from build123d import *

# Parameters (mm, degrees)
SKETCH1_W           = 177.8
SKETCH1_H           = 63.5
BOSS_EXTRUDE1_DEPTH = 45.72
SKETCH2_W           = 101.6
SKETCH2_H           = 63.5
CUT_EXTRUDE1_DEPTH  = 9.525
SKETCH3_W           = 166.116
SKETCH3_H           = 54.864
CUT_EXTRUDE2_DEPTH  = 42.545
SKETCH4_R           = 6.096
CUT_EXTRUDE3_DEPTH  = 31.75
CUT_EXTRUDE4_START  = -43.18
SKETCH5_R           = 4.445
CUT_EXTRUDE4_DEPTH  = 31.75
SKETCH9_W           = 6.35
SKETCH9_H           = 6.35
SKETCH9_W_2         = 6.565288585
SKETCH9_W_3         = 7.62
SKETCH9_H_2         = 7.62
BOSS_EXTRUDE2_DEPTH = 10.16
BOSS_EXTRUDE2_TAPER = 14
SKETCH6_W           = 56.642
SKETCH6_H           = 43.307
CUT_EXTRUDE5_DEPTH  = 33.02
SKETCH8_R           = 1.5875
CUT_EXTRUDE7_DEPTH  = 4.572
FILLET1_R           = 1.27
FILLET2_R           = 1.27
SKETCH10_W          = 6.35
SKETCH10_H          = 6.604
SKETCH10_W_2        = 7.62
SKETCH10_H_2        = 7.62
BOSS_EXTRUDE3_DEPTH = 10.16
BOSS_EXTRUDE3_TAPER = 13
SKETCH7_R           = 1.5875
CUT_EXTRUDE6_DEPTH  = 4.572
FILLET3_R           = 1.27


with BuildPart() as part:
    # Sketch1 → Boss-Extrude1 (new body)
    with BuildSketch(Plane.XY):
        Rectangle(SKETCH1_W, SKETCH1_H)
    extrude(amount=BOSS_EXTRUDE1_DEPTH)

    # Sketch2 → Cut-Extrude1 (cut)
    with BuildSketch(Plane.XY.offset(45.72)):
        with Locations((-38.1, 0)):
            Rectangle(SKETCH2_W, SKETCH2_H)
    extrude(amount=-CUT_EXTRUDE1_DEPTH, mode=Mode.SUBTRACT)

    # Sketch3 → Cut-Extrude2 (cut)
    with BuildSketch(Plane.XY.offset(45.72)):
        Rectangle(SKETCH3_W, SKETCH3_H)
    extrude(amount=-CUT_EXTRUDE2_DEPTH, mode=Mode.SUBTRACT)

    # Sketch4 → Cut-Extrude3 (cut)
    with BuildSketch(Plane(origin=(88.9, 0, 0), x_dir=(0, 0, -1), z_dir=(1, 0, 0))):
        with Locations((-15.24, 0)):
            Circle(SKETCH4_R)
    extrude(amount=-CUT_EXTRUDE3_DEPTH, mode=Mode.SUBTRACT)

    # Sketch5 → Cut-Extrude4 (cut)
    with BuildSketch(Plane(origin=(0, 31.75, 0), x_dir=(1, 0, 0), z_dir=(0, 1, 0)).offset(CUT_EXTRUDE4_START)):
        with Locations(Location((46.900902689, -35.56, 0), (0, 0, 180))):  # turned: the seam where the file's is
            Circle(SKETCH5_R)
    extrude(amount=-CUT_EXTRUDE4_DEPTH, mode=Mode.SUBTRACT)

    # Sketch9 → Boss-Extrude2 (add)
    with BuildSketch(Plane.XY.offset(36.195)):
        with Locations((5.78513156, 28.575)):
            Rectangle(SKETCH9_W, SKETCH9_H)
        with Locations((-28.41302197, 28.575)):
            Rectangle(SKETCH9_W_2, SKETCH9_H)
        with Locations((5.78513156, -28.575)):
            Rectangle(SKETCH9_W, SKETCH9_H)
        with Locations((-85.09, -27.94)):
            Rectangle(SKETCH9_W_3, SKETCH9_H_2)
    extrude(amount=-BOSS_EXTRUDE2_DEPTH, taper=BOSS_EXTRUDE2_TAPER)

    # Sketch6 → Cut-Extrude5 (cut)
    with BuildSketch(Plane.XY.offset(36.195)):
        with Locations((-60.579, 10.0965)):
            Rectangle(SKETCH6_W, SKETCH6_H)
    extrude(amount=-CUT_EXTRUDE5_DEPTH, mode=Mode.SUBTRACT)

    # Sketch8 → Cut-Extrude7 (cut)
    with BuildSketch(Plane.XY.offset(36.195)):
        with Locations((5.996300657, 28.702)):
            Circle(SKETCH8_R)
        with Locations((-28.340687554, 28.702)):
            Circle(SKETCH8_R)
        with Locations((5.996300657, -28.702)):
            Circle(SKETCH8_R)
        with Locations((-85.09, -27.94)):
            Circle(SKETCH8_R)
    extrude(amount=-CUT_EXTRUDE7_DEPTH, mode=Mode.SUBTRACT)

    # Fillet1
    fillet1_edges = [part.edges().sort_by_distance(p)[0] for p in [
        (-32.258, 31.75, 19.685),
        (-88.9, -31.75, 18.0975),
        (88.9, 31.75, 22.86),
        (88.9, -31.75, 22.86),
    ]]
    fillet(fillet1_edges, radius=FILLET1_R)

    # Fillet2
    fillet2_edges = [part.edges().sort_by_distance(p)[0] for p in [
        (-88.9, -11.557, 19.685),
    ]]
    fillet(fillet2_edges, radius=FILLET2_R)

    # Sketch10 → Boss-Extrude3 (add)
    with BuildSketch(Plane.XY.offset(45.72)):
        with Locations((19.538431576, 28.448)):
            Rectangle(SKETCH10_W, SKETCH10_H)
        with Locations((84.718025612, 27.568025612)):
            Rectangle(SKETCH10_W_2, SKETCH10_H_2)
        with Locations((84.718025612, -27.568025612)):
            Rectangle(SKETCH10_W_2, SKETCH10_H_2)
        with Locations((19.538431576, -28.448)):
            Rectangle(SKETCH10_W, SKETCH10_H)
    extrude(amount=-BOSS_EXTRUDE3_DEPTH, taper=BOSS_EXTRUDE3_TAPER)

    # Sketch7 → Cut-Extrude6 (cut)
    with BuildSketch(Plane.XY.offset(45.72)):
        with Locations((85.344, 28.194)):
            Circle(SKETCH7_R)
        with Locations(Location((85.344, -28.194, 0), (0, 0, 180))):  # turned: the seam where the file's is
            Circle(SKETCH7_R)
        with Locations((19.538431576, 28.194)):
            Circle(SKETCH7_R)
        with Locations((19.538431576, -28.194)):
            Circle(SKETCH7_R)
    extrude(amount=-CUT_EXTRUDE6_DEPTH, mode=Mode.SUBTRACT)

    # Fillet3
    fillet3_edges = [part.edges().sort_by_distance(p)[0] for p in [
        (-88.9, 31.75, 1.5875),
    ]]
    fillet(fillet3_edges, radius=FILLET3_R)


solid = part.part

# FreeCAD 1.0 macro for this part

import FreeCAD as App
import Part
import Sketcher

V = App.Vector
Q = App.Units.Quantity


def edges_at(feature, points):
    """Names of the edges that pass closest to the given points."""
    edges = feature.Shape.Edges
    near = lambda p: min(range(len(edges)), key=lambda i: edges[i].distToShape(Part.Vertex(*p))[0])
    return sorted({f"Edge{near(p) + 1}" for p in points})

doc = App.newDocument("Part")
body = doc.addObject("PartDesign::Body", "Body")

sketch1 = doc.addObject("Sketcher::SketchObject", "Sketch")
body.addObject(sketch1)
sketch1.AttachmentSupport = (doc.XY_Plane, [""])
sketch1.MapMode = "FlatFace"
sketch1.addGeometry(Part.LineSegment(V(-89, 32, 0), V(-89, -32, 0)), False)
sketch1.addGeometry(Part.LineSegment(V(-89, -32, 0), V(89, -32, 0)), False)
sketch1.addGeometry(Part.LineSegment(V(89, -32, 0), V(89, 32, 0)), False)
sketch1.addGeometry(Part.LineSegment(V(89, 32, 0), V(-89, 32, 0)), False)
sketch1.addConstraint(Sketcher.Constraint("Coincident", 0, 2, 1, 1))
sketch1.addConstraint(Sketcher.Constraint("Coincident", 1, 2, 2, 1))
sketch1.addConstraint(Sketcher.Constraint("Coincident", 2, 2, 3, 1))
sketch1.addConstraint(Sketcher.Constraint("Coincident", 3, 2, 0, 1))
sketch1.addConstraint(Sketcher.Constraint("Vertical", 0))
sketch1.addConstraint(Sketcher.Constraint("Horizontal", 1))
sketch1.addConstraint(Sketcher.Constraint("Vertical", 2))
sketch1.addConstraint(Sketcher.Constraint("Horizontal", 3))
sketch1.addConstraint(Sketcher.Constraint("Symmetric", 0, 2, 2, 2, -1, 1))
sketch1.addConstraint(Sketcher.Constraint("DistanceX", 1, 1, 1, 2, Q("7 in")))
sketch1.addConstraint(Sketcher.Constraint("DistanceY", 0, 2, 0, 1, Q("2.5 in")))
pad1 = doc.addObject("PartDesign::Pad", "Pad")
body.addObject(pad1)
pad1.Profile = sketch1
pad1.Length = Q("1.8 in")

sketch2 = doc.addObject("Sketcher::SketchObject", "Sketch001")
body.addObject(sketch2)
sketch2.AttachmentSupport = (doc.XY_Plane, [""])
sketch2.MapMode = "FlatFace"
sketch2.AttachmentOffset = App.Placement(V(0, 0, 1.8 * 25.4), App.Rotation())
sketch2.addGeometry(Part.LineSegment(V(-89, 32, 0), V(-89, -32, 0)), False)
sketch2.addGeometry(Part.LineSegment(V(-89, -32, 0), V(13, -32, 0)), False)
sketch2.addGeometry(Part.LineSegment(V(13, -32, 0), V(13, 32, 0)), False)
sketch2.addGeometry(Part.LineSegment(V(13, 32, 0), V(-89, 32, 0)), False)
sketch2.addConstraint(Sketcher.Constraint("Coincident", 0, 2, 1, 1))
sketch2.addConstraint(Sketcher.Constraint("Coincident", 1, 2, 2, 1))
sketch2.addConstraint(Sketcher.Constraint("Coincident", 2, 2, 3, 1))
sketch2.addConstraint(Sketcher.Constraint("Coincident", 3, 2, 0, 1))
sketch2.addConstraint(Sketcher.Constraint("Vertical", 0))
sketch2.addConstraint(Sketcher.Constraint("Horizontal", 1))
sketch2.addConstraint(Sketcher.Constraint("Vertical", 2))
sketch2.addConstraint(Sketcher.Constraint("Horizontal", 3))
sketch2.addConstraint(Sketcher.Constraint("DistanceX", 1, 1, 1, 2, Q("4 in")))
sketch2.addConstraint(Sketcher.Constraint("DistanceY", 0, 2, 0, 1, Q("2.5 in")))
sketch2.addConstraint(Sketcher.Constraint("DistanceX", 0, 2, -1, 1, Q("3.5 in")))
sketch2.addConstraint(Sketcher.Constraint("DistanceY", 0, 2, -1, 1, Q("1.25 in")))
pocket1 = doc.addObject("PartDesign::Pocket", "Pocket")
body.addObject(pocket1)
pocket1.Profile = sketch2
pocket1.Length = Q("0.375 in")

sketch3 = doc.addObject("Sketcher::SketchObject", "Sketch002")
body.addObject(sketch3)
sketch3.AttachmentSupport = (doc.XY_Plane, [""])
sketch3.MapMode = "FlatFace"
sketch3.AttachmentOffset = App.Placement(V(0, 0, 1.8 * 25.4), App.Rotation())
sketch3.addGeometry(Part.LineSegment(V(-83, 27, 0), V(-83, -27, 0)), False)
sketch3.addGeometry(Part.LineSegment(V(-83, -27, 0), V(83, -27, 0)), False)
sketch3.addGeometry(Part.LineSegment(V(83, -27, 0), V(83, 27, 0)), False)
sketch3.addGeometry(Part.LineSegment(V(83, 27, 0), V(-83, 27, 0)), False)
sketch3.addConstraint(Sketcher.Constraint("Coincident", 0, 2, 1, 1))
sketch3.addConstraint(Sketcher.Constraint("Coincident", 1, 2, 2, 1))
sketch3.addConstraint(Sketcher.Constraint("Coincident", 2, 2, 3, 1))
sketch3.addConstraint(Sketcher.Constraint("Coincident", 3, 2, 0, 1))
sketch3.addConstraint(Sketcher.Constraint("Vertical", 0))
sketch3.addConstraint(Sketcher.Constraint("Horizontal", 1))
sketch3.addConstraint(Sketcher.Constraint("Vertical", 2))
sketch3.addConstraint(Sketcher.Constraint("Horizontal", 3))
sketch3.addConstraint(Sketcher.Constraint("Symmetric", 0, 2, 2, 2, -1, 1))
sketch3.addConstraint(Sketcher.Constraint("DistanceX", 1, 1, 1, 2, Q("6.54 in")))
sketch3.addConstraint(Sketcher.Constraint("DistanceY", 0, 2, 0, 1, Q("2.16 in")))
pocket2 = doc.addObject("PartDesign::Pocket", "Pocket001")
body.addObject(pocket2)
pocket2.Profile = sketch3
pocket2.Length = Q("1.675 in")

sketch4 = doc.addObject("Sketcher::SketchObject", "Sketch003")
body.addObject(sketch4)
sketch4.AttachmentSupport = (doc.YZ_Plane, [""])
sketch4.MapMode = "FlatFace"
sketch4.AttachmentOffset = App.Placement(V(0, 0, 3.5 * 25.4), App.Rotation())
sketch4.addGeometry(Part.Circle(V(0, 15, 0), V(0, 0, 1), 6), False)
sketch4.addConstraint(Sketcher.Constraint("PointOnObject", 0, 3, -2))
sketch4.addConstraint(Sketcher.Constraint("Diameter", 0, Q("0.48 in")))
sketch4.addConstraint(Sketcher.Constraint("DistanceY", -1, 1, 0, 3, Q("0.6 in")))
pocket3 = doc.addObject("PartDesign::Pocket", "Pocket002")
body.addObject(pocket3)
pocket3.Profile = sketch4
pocket3.Length = Q("1.25 in")

sketch5 = doc.addObject("Sketcher::SketchObject", "Sketch004")
body.addObject(sketch5)
sketch5.AttachmentSupport = (doc.XZ_Plane, [""])
sketch5.MapMode = "FlatFace"
sketch5.AttachmentOffset = App.Placement(V(0, 0, 0.45 * 25.4), App.Rotation())
sketch5.addGeometry(Part.Circle(V(46.9, 35.6, 0), V(0, 0, 1), 4.4), False)
sketch5.addConstraint(Sketcher.Constraint("Diameter", 0, Q("0.35 in")))
sketch5.addConstraint(Sketcher.Constraint("DistanceY", -1, 1, 0, 3, Q("1.4 in")))
sketch5.addConstraint(Sketcher.Constraint("DistanceX", -1, 1, 0, 3, 46.900903))
pocket4 = doc.addObject("PartDesign::Pocket", "Pocket003")
body.addObject(pocket4)
pocket4.Profile = sketch5
pocket4.Length = Q("1.25 in")
pocket4.Reversed = True

sketch6 = doc.addObject("Sketcher::SketchObject", "Sketch005")
body.addObject(sketch6)
sketch6.AttachmentSupport = (doc.XY_Plane, [""])
sketch6.MapMode = "FlatFace"
sketch6.AttachmentOffset = App.Placement(V(0, 0, 1.425 * 25.4), App.Rotation())
sketch6.addGeometry(Part.LineSegment(V(3, 32, 0), V(3, 25, 0)), False)
sketch6.addGeometry(Part.LineSegment(V(3, 25, 0), V(9, 25, 0)), False)
sketch6.addGeometry(Part.LineSegment(V(9, 25, 0), V(9, 32, 0)), False)
sketch6.addGeometry(Part.LineSegment(V(9, 32, 0), V(3, 32, 0)), False)
sketch6.addGeometry(Part.LineSegment(V(-32, 32, 0), V(-32, 25, 0)), False)
sketch6.addGeometry(Part.LineSegment(V(-32, 25, 0), V(-25, 25, 0)), False)
sketch6.addGeometry(Part.LineSegment(V(-25, 25, 0), V(-25, 32, 0)), False)
sketch6.addGeometry(Part.LineSegment(V(-25, 32, 0), V(-32, 32, 0)), False)
sketch6.addGeometry(Part.LineSegment(V(3, -25, 0), V(3, -32, 0)), False)
sketch6.addGeometry(Part.LineSegment(V(3, -32, 0), V(9, -32, 0)), False)
sketch6.addGeometry(Part.LineSegment(V(9, -32, 0), V(9, -25, 0)), False)
sketch6.addGeometry(Part.LineSegment(V(9, -25, 0), V(3, -25, 0)), False)
sketch6.addGeometry(Part.LineSegment(V(-89, -24, 0), V(-89, -32, 0)), False)
sketch6.addGeometry(Part.LineSegment(V(-89, -32, 0), V(-81, -32, 0)), False)
sketch6.addGeometry(Part.LineSegment(V(-81, -32, 0), V(-81, -24, 0)), False)
sketch6.addGeometry(Part.LineSegment(V(-81, -24, 0), V(-89, -24, 0)), False)
sketch6.addConstraint(Sketcher.Constraint("Coincident", 0, 2, 1, 1))
sketch6.addConstraint(Sketcher.Constraint("Coincident", 1, 2, 2, 1))
sketch6.addConstraint(Sketcher.Constraint("Coincident", 2, 2, 3, 1))
sketch6.addConstraint(Sketcher.Constraint("Coincident", 3, 2, 0, 1))
sketch6.addConstraint(Sketcher.Constraint("Coincident", 4, 2, 5, 1))
sketch6.addConstraint(Sketcher.Constraint("Coincident", 5, 2, 6, 1))
sketch6.addConstraint(Sketcher.Constraint("Coincident", 6, 2, 7, 1))
sketch6.addConstraint(Sketcher.Constraint("Coincident", 7, 2, 4, 1))
sketch6.addConstraint(Sketcher.Constraint("Coincident", 8, 2, 9, 1))
sketch6.addConstraint(Sketcher.Constraint("Coincident", 9, 2, 10, 1))
sketch6.addConstraint(Sketcher.Constraint("Coincident", 10, 2, 11, 1))
sketch6.addConstraint(Sketcher.Constraint("Coincident", 11, 2, 8, 1))
sketch6.addConstraint(Sketcher.Constraint("Coincident", 12, 2, 13, 1))
sketch6.addConstraint(Sketcher.Constraint("Coincident", 13, 2, 14, 1))
sketch6.addConstraint(Sketcher.Constraint("Coincident", 14, 2, 15, 1))
sketch6.addConstraint(Sketcher.Constraint("Coincident", 15, 2, 12, 1))
sketch6.addConstraint(Sketcher.Constraint("Vertical", 0))
sketch6.addConstraint(Sketcher.Constraint("Horizontal", 1))
sketch6.addConstraint(Sketcher.Constraint("Vertical", 2))
sketch6.addConstraint(Sketcher.Constraint("Horizontal", 3))
sketch6.addConstraint(Sketcher.Constraint("Vertical", 4))
sketch6.addConstraint(Sketcher.Constraint("Horizontal", 5))
sketch6.addConstraint(Sketcher.Constraint("Vertical", 6))
sketch6.addConstraint(Sketcher.Constraint("Horizontal", 7))
sketch6.addConstraint(Sketcher.Constraint("Vertical", 8))
sketch6.addConstraint(Sketcher.Constraint("Horizontal", 9))
sketch6.addConstraint(Sketcher.Constraint("Vertical", 10))
sketch6.addConstraint(Sketcher.Constraint("Horizontal", 11))
sketch6.addConstraint(Sketcher.Constraint("Vertical", 12))
sketch6.addConstraint(Sketcher.Constraint("Horizontal", 13))
sketch6.addConstraint(Sketcher.Constraint("Vertical", 14))
sketch6.addConstraint(Sketcher.Constraint("Horizontal", 15))
sketch6.addConstraint(Sketcher.Constraint("Symmetric", 3, 2, 8, 2, -1))
sketch6.addConstraint(Sketcher.Constraint("Symmetric", 1, 2, 10, 2, -1))
sketch6.addConstraint(Sketcher.Constraint("Horizontal", 1, 2, 4, 2))
sketch6.addConstraint(Sketcher.Constraint("Horizontal", 3, 2, 6, 2))
sketch6.addConstraint(Sketcher.Constraint("Horizontal", 9, 2, 12, 2))
sketch6.addConstraint(Sketcher.Constraint("Equal", 11, 0))
sketch6.addConstraint(Sketcher.Constraint("Equal", 15, 12))
sketch6.addConstraint(Sketcher.Constraint("DistanceX", 13, 1, 13, 2, Q("0.3 in")))
sketch6.addConstraint(Sketcher.Constraint("DistanceY", -1, 1, 0, 2, Q("1 in")))
sketch6.addConstraint(Sketcher.Constraint("DistanceX", 1, 1, 1, 2, Q("0.25 in")))
sketch6.addConstraint(Sketcher.Constraint("DistanceX", 12, 2, -1, 1, Q("3.5 in")))
sketch6.addConstraint(Sketcher.Constraint("DistanceX", 5, 1, 5, 2, 6.565289))
sketch6.addConstraint(Sketcher.Constraint("DistanceX", -1, 1, 0, 2, 2.610132))
sketch6.addConstraint(Sketcher.Constraint("DistanceX", 5, 2, 0, 2, 27.740509))
pad2 = doc.addObject("PartDesign::Pad", "Pad001")
body.addObject(pad2)
pad2.Profile = sketch6
pad2.Length = Q("0.4 in")
pad2.Reversed = True
pad2.TaperAngle = -14

sketch7 = doc.addObject("Sketcher::SketchObject", "Sketch006")
body.addObject(sketch7)
sketch7.AttachmentSupport = (doc.XY_Plane, [""])
sketch7.MapMode = "FlatFace"
sketch7.AttachmentOffset = App.Placement(V(0, 0, 1.425 * 25.4), App.Rotation())
sketch7.addGeometry(Part.LineSegment(V(-89, 32, 0), V(-89, -12, 0)), False)
sketch7.addGeometry(Part.LineSegment(V(-89, -12, 0), V(-32, -12, 0)), False)
sketch7.addGeometry(Part.LineSegment(V(-32, -12, 0), V(-32, 32, 0)), False)
sketch7.addGeometry(Part.LineSegment(V(-32, 32, 0), V(-89, 32, 0)), False)
sketch7.addConstraint(Sketcher.Constraint("Coincident", 0, 2, 1, 1))
sketch7.addConstraint(Sketcher.Constraint("Coincident", 1, 2, 2, 1))
sketch7.addConstraint(Sketcher.Constraint("Coincident", 2, 2, 3, 1))
sketch7.addConstraint(Sketcher.Constraint("Coincident", 3, 2, 0, 1))
sketch7.addConstraint(Sketcher.Constraint("Vertical", 0))
sketch7.addConstraint(Sketcher.Constraint("Horizontal", 1))
sketch7.addConstraint(Sketcher.Constraint("Vertical", 2))
sketch7.addConstraint(Sketcher.Constraint("Horizontal", 3))
sketch7.addConstraint(Sketcher.Constraint("DistanceX", 1, 1, 1, 2, Q("2.23 in")))
sketch7.addConstraint(Sketcher.Constraint("DistanceX", 0, 2, -1, 1, Q("3.5 in")))
sketch7.addConstraint(Sketcher.Constraint("DistanceY", 0, 2, 0, 1, Q("1.705 in")))
sketch7.addConstraint(Sketcher.Constraint("DistanceY", -1, 1, 2, 2, Q("1.25 in")))
pocket5 = doc.addObject("PartDesign::Pocket", "Pocket004")
body.addObject(pocket5)
pocket5.Profile = sketch7
pocket5.Length = Q("1.3 in")

sketch8 = doc.addObject("Sketcher::SketchObject", "Sketch007")
body.addObject(sketch8)
sketch8.AttachmentSupport = (doc.XY_Plane, [""])
sketch8.MapMode = "FlatFace"
sketch8.AttachmentOffset = App.Placement(V(0, 0, 1.425 * 25.4), App.Rotation())
sketch8.addGeometry(Part.Circle(V(6, 28.7, 0), V(0, 0, 1), 1.6), False)
sketch8.addGeometry(Part.Circle(V(-28.3, 28.7, 0), V(0, 0, 1), 1.6), False)
sketch8.addGeometry(Part.Circle(V(6, -28.7, 0), V(0, 0, 1), 1.6), False)
sketch8.addGeometry(Part.Circle(V(-85.1, -27.9, 0), V(0, 0, 1), 1.6), False)
sketch8.addConstraint(Sketcher.Constraint("Equal", 0, 1))
sketch8.addConstraint(Sketcher.Constraint("Equal", 1, 2))
sketch8.addConstraint(Sketcher.Constraint("Equal", 2, 3))
sketch8.addConstraint(Sketcher.Constraint("Symmetric", 0, 3, 2, 3, -1))
sketch8.addConstraint(Sketcher.Constraint("Horizontal", 0, 3, 1, 3))
sketch8.addConstraint(Sketcher.Constraint("Diameter", 0, Q("0.125 in")))
sketch8.addConstraint(Sketcher.Constraint("DistanceY", 3, 3, -1, 1, Q("1.1 in")))
sketch8.addConstraint(Sketcher.Constraint("DistanceY", -1, 1, 0, 3, Q("1.13 in")))
sketch8.addConstraint(Sketcher.Constraint("DistanceX", 3, 3, -1, 1, Q("3.35 in")))
sketch8.addConstraint(Sketcher.Constraint("DistanceX", -1, 1, 0, 3, 5.996301))
sketch8.addConstraint(Sketcher.Constraint("DistanceX", 1, 3, 0, 3, 34.336988))
pocket6 = doc.addObject("PartDesign::Pocket", "Pocket005")
body.addObject(pocket6)
pocket6.Profile = sketch8
pocket6.Length = Q("0.18 in")
doc.recompute()

fillet = doc.addObject("PartDesign::Fillet", "Fillet")
body.addObject(fillet)
fillet.Base = (pocket6, edges_at(pocket6, [
    (-32.258, 31.75, 19.685),
    (-88.9, -31.75, 18.098),
    (88.9, 31.75, 22.86),
    (88.9, -31.75, 22.86),
]))
fillet.Radius = Q("0.05 in")
doc.recompute()

fillet2 = doc.addObject("PartDesign::Fillet", "Fillet001")
body.addObject(fillet2)
fillet2.Base = (fillet, edges_at(fillet, [(-88.9, -11.557, 19.685)]))
fillet2.Radius = Q("0.05 in")

sketch9 = doc.addObject("Sketcher::SketchObject", "Sketch008")
body.addObject(sketch9)
sketch9.AttachmentSupport = (doc.XY_Plane, [""])
sketch9.MapMode = "FlatFace"
sketch9.AttachmentOffset = App.Placement(V(0, 0, 1.8 * 25.4), App.Rotation())
sketch9.addGeometry(Part.LineSegment(V(16, 32, 0), V(16, 25, 0)), False)
sketch9.addGeometry(Part.LineSegment(V(16, 25, 0), V(23, 25, 0)), False)
sketch9.addGeometry(Part.LineSegment(V(23, 25, 0), V(23, 32, 0)), False)
sketch9.addGeometry(Part.LineSegment(V(23, 32, 0), V(16, 32, 0)), False)
sketch9.addGeometry(Part.LineSegment(V(81, 31, 0), V(81, 24, 0)), False)
sketch9.addGeometry(Part.LineSegment(V(81, 24, 0), V(89, 24, 0)), False)
sketch9.addGeometry(Part.LineSegment(V(89, 24, 0), V(89, 31, 0)), False)
sketch9.addGeometry(Part.LineSegment(V(89, 31, 0), V(81, 31, 0)), False)
sketch9.addGeometry(Part.LineSegment(V(81, -24, 0), V(81, -31, 0)), False)
sketch9.addGeometry(Part.LineSegment(V(81, -31, 0), V(89, -31, 0)), False)
sketch9.addGeometry(Part.LineSegment(V(89, -31, 0), V(89, -24, 0)), False)
sketch9.addGeometry(Part.LineSegment(V(89, -24, 0), V(81, -24, 0)), False)
sketch9.addGeometry(Part.LineSegment(V(16, -25, 0), V(16, -32, 0)), False)
sketch9.addGeometry(Part.LineSegment(V(16, -32, 0), V(23, -32, 0)), False)
sketch9.addGeometry(Part.LineSegment(V(23, -32, 0), V(23, -25, 0)), False)
sketch9.addGeometry(Part.LineSegment(V(23, -25, 0), V(16, -25, 0)), False)
sketch9.addConstraint(Sketcher.Constraint("Coincident", 0, 2, 1, 1))
sketch9.addConstraint(Sketcher.Constraint("Coincident", 1, 2, 2, 1))
sketch9.addConstraint(Sketcher.Constraint("Coincident", 2, 2, 3, 1))
sketch9.addConstraint(Sketcher.Constraint("Coincident", 3, 2, 0, 1))
sketch9.addConstraint(Sketcher.Constraint("Coincident", 4, 2, 5, 1))
sketch9.addConstraint(Sketcher.Constraint("Coincident", 5, 2, 6, 1))
sketch9.addConstraint(Sketcher.Constraint("Coincident", 6, 2, 7, 1))
sketch9.addConstraint(Sketcher.Constraint("Coincident", 7, 2, 4, 1))
sketch9.addConstraint(Sketcher.Constraint("Coincident", 8, 2, 9, 1))
sketch9.addConstraint(Sketcher.Constraint("Coincident", 9, 2, 10, 1))
sketch9.addConstraint(Sketcher.Constraint("Coincident", 10, 2, 11, 1))
sketch9.addConstraint(Sketcher.Constraint("Coincident", 11, 2, 8, 1))
sketch9.addConstraint(Sketcher.Constraint("Coincident", 12, 2, 13, 1))
sketch9.addConstraint(Sketcher.Constraint("Coincident", 13, 2, 14, 1))
sketch9.addConstraint(Sketcher.Constraint("Coincident", 14, 2, 15, 1))
sketch9.addConstraint(Sketcher.Constraint("Coincident", 15, 2, 12, 1))
sketch9.addConstraint(Sketcher.Constraint("Vertical", 0))
sketch9.addConstraint(Sketcher.Constraint("Horizontal", 1))
sketch9.addConstraint(Sketcher.Constraint("Vertical", 2))
sketch9.addConstraint(Sketcher.Constraint("Horizontal", 3))
sketch9.addConstraint(Sketcher.Constraint("Vertical", 4))
sketch9.addConstraint(Sketcher.Constraint("Horizontal", 5))
sketch9.addConstraint(Sketcher.Constraint("Vertical", 6))
sketch9.addConstraint(Sketcher.Constraint("Horizontal", 7))
sketch9.addConstraint(Sketcher.Constraint("Vertical", 8))
sketch9.addConstraint(Sketcher.Constraint("Horizontal", 9))
sketch9.addConstraint(Sketcher.Constraint("Vertical", 10))
sketch9.addConstraint(Sketcher.Constraint("Horizontal", 11))
sketch9.addConstraint(Sketcher.Constraint("Vertical", 12))
sketch9.addConstraint(Sketcher.Constraint("Horizontal", 13))
sketch9.addConstraint(Sketcher.Constraint("Vertical", 14))
sketch9.addConstraint(Sketcher.Constraint("Horizontal", 15))
sketch9.addConstraint(Sketcher.Constraint("Symmetric", 7, 2, 8, 2, -1))
sketch9.addConstraint(Sketcher.Constraint("Symmetric", 5, 2, 10, 2, -1))
sketch9.addConstraint(Sketcher.Constraint("Symmetric", 3, 2, 12, 2, -1))
sketch9.addConstraint(Sketcher.Constraint("Symmetric", 1, 2, 14, 2, -1))
sketch9.addConstraint(Sketcher.Constraint("Equal", 11, 4))
sketch9.addConstraint(Sketcher.Constraint("DistanceX", 5, 1, 5, 2, Q("0.3 in")))
sketch9.addConstraint(Sketcher.Constraint("DistanceX", 1, 1, 1, 2, Q("0.25 in")))
sketch9.addConstraint(Sketcher.Constraint("DistanceY", 0, 2, 0, 1, Q("0.26 in")))
sketch9.addConstraint(Sketcher.Constraint("DistanceY", 12, 2, 3, 2, Q("2.5 in")))
sketch9.addConstraint(Sketcher.Constraint("DistanceX", -1, 1, 0, 2, 16.363432))
sketch9.addConstraint(Sketcher.Constraint("DistanceY", 8, 2, 4, 2, 55.136051))
sketch9.addConstraint(Sketcher.Constraint("DistanceX", -1, 1, 4, 2, 80.908026))
pad3 = doc.addObject("PartDesign::Pad", "Pad002")
body.addObject(pad3)
pad3.Profile = sketch9
pad3.Length = Q("0.4 in")
pad3.Reversed = True
pad3.TaperAngle = -13

sketch10 = doc.addObject("Sketcher::SketchObject", "Sketch009")
body.addObject(sketch10)
sketch10.AttachmentSupport = (doc.XY_Plane, [""])
sketch10.MapMode = "FlatFace"
sketch10.AttachmentOffset = App.Placement(V(0, 0, 1.8 * 25.4), App.Rotation())
sketch10.addGeometry(Part.Circle(V(85.3, 28.2, 0), V(0, 0, 1), 1.6), False)
sketch10.addGeometry(Part.Circle(V(85.3, -28.2, 0), V(0, 0, 1), 1.6), False)
sketch10.addGeometry(Part.Circle(V(19.5, 28.2, 0), V(0, 0, 1), 1.6), False)
sketch10.addGeometry(Part.Circle(V(19.5, -28.2, 0), V(0, 0, 1), 1.6), False)
sketch10.addConstraint(Sketcher.Constraint("Equal", 0, 1))
sketch10.addConstraint(Sketcher.Constraint("Equal", 1, 2))
sketch10.addConstraint(Sketcher.Constraint("Equal", 2, 3))
sketch10.addConstraint(Sketcher.Constraint("Symmetric", 0, 3, 1, 3, -1))
sketch10.addConstraint(Sketcher.Constraint("Symmetric", 2, 3, 3, 3, -1))
sketch10.addConstraint(Sketcher.Constraint("Horizontal", 0, 3, 2, 3))
sketch10.addConstraint(Sketcher.Constraint("Diameter", 0, Q("0.125 in")))
sketch10.addConstraint(Sketcher.Constraint("DistanceX", -1, 1, 0, 3, Q("3.36 in")))
sketch10.addConstraint(Sketcher.Constraint("DistanceY", -1, 1, 0, 3, Q("1.11 in")))
sketch10.addConstraint(Sketcher.Constraint("DistanceX", -1, 1, 2, 3, 19.538432))
pocket7 = doc.addObject("PartDesign::Pocket", "Pocket006")
body.addObject(pocket7)
pocket7.Profile = sketch10
pocket7.Length = Q("0.18 in")
doc.recompute()

fillet3 = doc.addObject("PartDesign::Fillet", "Fillet002")
body.addObject(fillet3)
fillet3.Base = (pocket7, edges_at(pocket7, [(-88.9, 31.75, 1.587)]))
fillet3.Radius = Q("0.05 in")

doc.recompute()
